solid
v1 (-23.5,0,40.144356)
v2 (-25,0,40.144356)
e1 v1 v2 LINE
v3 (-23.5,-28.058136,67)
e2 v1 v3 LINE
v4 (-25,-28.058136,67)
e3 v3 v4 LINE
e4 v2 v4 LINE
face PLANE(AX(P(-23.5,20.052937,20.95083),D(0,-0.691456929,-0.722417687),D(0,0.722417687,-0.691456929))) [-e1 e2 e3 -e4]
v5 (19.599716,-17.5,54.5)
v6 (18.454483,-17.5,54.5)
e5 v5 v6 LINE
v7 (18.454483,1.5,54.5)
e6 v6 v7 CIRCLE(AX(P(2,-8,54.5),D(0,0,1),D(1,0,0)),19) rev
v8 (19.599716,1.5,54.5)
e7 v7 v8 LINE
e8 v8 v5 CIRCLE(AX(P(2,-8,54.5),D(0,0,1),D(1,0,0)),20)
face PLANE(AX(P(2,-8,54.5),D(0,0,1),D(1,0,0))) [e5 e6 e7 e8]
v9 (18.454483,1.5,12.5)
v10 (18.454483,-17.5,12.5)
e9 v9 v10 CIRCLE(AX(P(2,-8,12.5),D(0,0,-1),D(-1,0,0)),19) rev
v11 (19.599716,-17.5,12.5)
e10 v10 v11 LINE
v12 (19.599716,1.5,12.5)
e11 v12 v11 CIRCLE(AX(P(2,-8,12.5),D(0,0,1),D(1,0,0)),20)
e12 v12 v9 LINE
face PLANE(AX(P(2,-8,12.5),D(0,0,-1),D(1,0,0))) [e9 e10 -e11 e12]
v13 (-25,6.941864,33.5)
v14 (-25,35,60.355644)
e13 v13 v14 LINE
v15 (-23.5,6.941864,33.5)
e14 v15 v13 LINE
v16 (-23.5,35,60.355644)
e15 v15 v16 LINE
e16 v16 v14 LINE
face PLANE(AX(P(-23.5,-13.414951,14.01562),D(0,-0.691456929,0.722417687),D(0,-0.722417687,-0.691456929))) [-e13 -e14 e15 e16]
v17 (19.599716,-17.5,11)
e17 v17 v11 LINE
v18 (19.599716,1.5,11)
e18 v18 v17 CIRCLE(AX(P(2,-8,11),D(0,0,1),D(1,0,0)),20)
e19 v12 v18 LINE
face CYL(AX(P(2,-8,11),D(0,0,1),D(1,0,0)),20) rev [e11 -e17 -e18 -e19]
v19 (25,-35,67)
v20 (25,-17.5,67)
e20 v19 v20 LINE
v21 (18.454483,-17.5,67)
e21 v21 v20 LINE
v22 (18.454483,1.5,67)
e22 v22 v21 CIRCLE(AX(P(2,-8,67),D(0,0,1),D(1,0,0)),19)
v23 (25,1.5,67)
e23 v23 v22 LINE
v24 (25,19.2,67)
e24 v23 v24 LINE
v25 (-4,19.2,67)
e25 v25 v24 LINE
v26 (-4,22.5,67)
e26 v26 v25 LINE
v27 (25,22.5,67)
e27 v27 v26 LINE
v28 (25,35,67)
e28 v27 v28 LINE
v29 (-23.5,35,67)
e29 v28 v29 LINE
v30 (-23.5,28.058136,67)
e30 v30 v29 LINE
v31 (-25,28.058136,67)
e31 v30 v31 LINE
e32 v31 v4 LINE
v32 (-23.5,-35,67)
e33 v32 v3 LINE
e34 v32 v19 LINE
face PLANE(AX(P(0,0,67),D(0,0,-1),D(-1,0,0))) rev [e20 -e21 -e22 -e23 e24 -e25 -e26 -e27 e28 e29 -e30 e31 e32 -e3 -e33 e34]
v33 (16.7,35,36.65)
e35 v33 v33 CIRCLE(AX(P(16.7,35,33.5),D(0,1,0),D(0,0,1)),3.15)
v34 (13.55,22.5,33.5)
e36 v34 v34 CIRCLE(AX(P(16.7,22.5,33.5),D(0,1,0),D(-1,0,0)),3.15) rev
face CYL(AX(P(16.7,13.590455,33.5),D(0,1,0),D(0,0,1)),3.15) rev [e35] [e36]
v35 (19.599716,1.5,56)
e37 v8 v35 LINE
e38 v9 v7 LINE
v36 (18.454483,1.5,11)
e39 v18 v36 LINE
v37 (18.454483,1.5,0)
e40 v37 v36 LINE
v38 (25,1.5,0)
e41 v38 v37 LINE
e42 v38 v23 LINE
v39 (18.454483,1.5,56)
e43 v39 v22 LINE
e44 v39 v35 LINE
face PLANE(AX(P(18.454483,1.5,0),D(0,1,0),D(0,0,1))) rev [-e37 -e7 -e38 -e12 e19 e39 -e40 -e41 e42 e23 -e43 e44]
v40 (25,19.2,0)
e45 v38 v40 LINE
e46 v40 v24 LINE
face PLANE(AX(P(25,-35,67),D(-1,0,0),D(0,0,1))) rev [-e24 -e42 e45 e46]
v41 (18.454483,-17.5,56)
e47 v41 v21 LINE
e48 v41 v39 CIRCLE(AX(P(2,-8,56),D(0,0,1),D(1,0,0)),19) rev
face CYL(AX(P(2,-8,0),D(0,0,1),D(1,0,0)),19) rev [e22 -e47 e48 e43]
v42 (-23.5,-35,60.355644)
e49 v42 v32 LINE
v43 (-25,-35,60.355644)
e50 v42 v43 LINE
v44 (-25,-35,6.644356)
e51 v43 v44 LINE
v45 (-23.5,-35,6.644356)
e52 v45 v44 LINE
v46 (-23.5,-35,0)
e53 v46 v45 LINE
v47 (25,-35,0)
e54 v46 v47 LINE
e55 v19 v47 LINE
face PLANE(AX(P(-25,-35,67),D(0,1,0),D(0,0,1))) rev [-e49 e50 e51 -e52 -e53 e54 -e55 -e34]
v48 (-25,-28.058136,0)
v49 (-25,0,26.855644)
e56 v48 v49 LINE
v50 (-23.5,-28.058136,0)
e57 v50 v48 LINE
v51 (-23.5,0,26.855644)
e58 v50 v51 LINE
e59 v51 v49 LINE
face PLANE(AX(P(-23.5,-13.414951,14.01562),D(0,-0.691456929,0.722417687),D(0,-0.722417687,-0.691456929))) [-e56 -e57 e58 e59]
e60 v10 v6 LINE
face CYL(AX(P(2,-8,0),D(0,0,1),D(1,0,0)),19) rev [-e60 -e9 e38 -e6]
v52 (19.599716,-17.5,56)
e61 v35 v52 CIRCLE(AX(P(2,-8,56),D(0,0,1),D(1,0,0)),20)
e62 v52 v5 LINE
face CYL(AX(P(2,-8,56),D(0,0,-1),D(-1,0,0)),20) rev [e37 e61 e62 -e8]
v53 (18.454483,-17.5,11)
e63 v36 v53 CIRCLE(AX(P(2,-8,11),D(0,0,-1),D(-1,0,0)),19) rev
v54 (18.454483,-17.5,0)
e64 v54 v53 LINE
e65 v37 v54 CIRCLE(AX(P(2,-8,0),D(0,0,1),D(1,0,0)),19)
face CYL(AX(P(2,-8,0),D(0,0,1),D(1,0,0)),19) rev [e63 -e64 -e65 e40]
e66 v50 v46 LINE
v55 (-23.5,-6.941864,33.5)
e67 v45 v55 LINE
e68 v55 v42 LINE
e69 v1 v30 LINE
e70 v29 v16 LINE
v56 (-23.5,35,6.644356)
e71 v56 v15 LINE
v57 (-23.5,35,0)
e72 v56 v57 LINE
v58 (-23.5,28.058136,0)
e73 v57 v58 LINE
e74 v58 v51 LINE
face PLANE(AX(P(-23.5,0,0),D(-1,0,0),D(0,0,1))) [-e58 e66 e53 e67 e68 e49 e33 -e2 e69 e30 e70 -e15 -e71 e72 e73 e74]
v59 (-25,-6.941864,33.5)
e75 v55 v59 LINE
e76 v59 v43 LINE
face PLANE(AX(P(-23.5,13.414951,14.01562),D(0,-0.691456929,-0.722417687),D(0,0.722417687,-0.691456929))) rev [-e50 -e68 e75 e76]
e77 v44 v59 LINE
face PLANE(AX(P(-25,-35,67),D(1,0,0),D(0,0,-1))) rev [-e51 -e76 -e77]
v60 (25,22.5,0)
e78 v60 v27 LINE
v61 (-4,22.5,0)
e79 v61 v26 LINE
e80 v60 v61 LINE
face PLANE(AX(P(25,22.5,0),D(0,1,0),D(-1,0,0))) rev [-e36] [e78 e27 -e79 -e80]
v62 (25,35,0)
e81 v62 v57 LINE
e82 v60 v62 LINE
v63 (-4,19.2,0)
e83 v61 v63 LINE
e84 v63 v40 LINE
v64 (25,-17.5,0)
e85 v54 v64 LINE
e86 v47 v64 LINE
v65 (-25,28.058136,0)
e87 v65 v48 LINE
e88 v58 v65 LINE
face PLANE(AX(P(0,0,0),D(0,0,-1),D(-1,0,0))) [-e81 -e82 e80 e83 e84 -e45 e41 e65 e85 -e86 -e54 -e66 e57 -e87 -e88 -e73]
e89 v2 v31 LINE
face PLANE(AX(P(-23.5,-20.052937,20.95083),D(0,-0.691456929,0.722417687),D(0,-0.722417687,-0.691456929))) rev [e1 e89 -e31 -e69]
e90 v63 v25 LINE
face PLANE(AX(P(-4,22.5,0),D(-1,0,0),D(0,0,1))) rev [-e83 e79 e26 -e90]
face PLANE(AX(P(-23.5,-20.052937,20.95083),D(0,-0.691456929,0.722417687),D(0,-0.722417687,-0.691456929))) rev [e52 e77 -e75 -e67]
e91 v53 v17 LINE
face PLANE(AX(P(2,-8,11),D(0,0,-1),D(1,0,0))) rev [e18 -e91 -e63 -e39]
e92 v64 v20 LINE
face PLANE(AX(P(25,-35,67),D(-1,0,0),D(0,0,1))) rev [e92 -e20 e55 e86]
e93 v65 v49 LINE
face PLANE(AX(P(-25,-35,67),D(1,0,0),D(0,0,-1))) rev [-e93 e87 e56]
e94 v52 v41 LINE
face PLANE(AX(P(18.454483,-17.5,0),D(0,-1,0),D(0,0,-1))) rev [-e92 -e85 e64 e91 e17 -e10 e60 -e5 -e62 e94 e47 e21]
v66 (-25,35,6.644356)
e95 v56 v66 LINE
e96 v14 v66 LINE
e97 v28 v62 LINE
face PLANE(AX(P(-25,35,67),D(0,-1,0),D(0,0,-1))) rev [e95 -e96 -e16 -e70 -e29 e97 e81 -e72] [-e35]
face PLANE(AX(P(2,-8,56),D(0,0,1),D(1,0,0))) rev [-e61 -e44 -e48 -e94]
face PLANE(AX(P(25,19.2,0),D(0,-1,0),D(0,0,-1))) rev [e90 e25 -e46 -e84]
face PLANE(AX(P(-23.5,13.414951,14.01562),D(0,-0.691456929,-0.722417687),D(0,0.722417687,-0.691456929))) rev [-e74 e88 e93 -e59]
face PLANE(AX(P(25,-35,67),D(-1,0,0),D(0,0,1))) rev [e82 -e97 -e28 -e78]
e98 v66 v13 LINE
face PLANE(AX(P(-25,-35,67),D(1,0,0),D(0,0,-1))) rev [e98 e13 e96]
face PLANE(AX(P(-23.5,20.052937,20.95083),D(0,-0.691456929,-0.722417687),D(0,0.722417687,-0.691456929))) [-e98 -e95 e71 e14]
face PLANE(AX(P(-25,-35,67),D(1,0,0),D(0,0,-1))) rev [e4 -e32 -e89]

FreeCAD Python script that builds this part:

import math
import FreeCAD as App
import Part
import Sketcher

V = App.Vector

doc = App.newDocument("Part")
body = doc.addObject("PartDesign::Body", "Body")

# Sketch on XY plane
sketch1 = body.newObject("Sketcher::SketchObject", "Sketch")
sketch1.AttachmentSupport = (doc.getObject("XY_Plane"), [""])
sketch1.MapMode = "FlatFace"
sketch1.addGeometry(Part.LineSegment(V(-25, 35, 0), V(-25, -35, 0)), False)
sketch1.addGeometry(Part.LineSegment(V(-25, -35, 0), V(25, -35, 0)), False)
sketch1.addGeometry(Part.LineSegment(V(25, -35, 0), V(25, 35, 0)), False)
sketch1.addGeometry(Part.LineSegment(V(25, 35, 0), V(-25, 35, 0)), False)
sketch1.addConstraint(Sketcher.Constraint("Coincident", 0, 2, 1, 1))
sketch1.addConstraint(Sketcher.Constraint("Coincident", 1, 2, 2, 1))
sketch1.addConstraint(Sketcher.Constraint("Coincident", 2, 2, 3, 1))
sketch1.addConstraint(Sketcher.Constraint("Coincident", 3, 2, 0, 1))
sketch1.addConstraint(Sketcher.Constraint("Vertical", 0))
sketch1.addConstraint(Sketcher.Constraint("Horizontal", 1))
sketch1.addConstraint(Sketcher.Constraint("Vertical", 2))
sketch1.addConstraint(Sketcher.Constraint("Horizontal", 3))
sketch1.addConstraint(Sketcher.Constraint("Symmetric", 0, 2, 2, 2, -1, 1))
sketch1.addConstraint(Sketcher.Constraint("DistanceX", 1, 1, 1, 2, 50.0))
sketch1.addConstraint(Sketcher.Constraint("DistanceY", 0, 2, 0, 1, 70.0))
pad1 = body.newObject("PartDesign::Pad", "Pad")
pad1.Profile = sketch1
pad1.Length = 67

# Sketch on XY plane
sketch2 = body.newObject("Sketcher::SketchObject", "Sketch001")
sketch2.AttachmentSupport = (doc.getObject("XY_Plane"), [""])
sketch2.MapMode = "FlatFace"
sketch2.AttachmentOffset = App.Placement(V(0, 0, 67), App.Rotation())
sketch2.addGeometry(Part.LineSegment(V(-4, 22.5, 0), V(-4, 19.2, 0)), False)
sketch2.addGeometry(Part.LineSegment(V(-4, 19.2, 0), V(25, 19.2, 0)), False)
sketch2.addGeometry(Part.LineSegment(V(25, 19.2, 0), V(25, 22.5, 0)), False)
sketch2.addGeometry(Part.LineSegment(V(25, 22.5, 0), V(-4, 22.5, 0)), False)
sketch2.addGeometry(Part.LineSegment(V(18.5, -17.5, 0), V(25, -17.5, 0)), False)
sketch2.addGeometry(Part.LineSegment(V(25, -17.5, 0), V(25, 1.5, 0)), False)
sketch2.addGeometry(Part.LineSegment(V(25, 1.5, 0), V(18.5, 1.5, 0)), False)
sketch2.addGeometry(Part.ArcOfCircle(Part.Circle(V(2, -8, 0), V(0, 0, 1), 19), math.radians(30), math.radians(330)), False)
sketch2.addConstraint(Sketcher.Constraint("Coincident", 0, 2, 1, 1))
sketch2.addConstraint(Sketcher.Constraint("Coincident", 1, 2, 2, 1))
sketch2.addConstraint(Sketcher.Constraint("Coincident", 2, 2, 3, 1))
sketch2.addConstraint(Sketcher.Constraint("Coincident", 3, 2, 0, 1))
sketch2.addConstraint(Sketcher.Constraint("Coincident", 4, 2, 5, 1))
sketch2.addConstraint(Sketcher.Constraint("Coincident", 5, 2, 6, 1))
sketch2.addConstraint(Sketcher.Constraint("Coincident", 6, 2, 7, 1))
sketch2.addConstraint(Sketcher.Constraint("Coincident", 7, 2, 4, 1))
sketch2.addConstraint(Sketcher.Constraint("Vertical", 0))
sketch2.addConstraint(Sketcher.Constraint("Horizontal", 1))
sketch2.addConstraint(Sketcher.Constraint("Vertical", 2))
sketch2.addConstraint(Sketcher.Constraint("Horizontal", 3))
sketch2.addConstraint(Sketcher.Constraint("Horizontal", 4))
sketch2.addConstraint(Sketcher.Constraint("Vertical", 5))
sketch2.addConstraint(Sketcher.Constraint("Horizontal", 6))
sketch2.addConstraint(Sketcher.Constraint("Vertical", 2, 2, 4, 2))
sketch2.addConstraint(Sketcher.Constraint("Vertical", 6, 2, 7, 2))
sketch2.addConstraint(Sketcher.Constraint("Radius", 7, 19.0))
sketch2.addConstraint(Sketcher.Constraint("DistanceX", 1, 1, 1, 2, 29.0))
sketch2.addConstraint(Sketcher.Constraint("DistanceY", 5, 1, 5, 2, 19.0))
sketch2.addConstraint(Sketcher.Constraint("DistanceY", 0, 2, 0, 1, 3.3))
sketch2.addConstraint(Sketcher.Constraint("DistanceX", -1, 1, 7, 3, 2.0))
sketch2.addConstraint(Sketcher.Constraint("DistanceY", 7, 3, -1, 1, 8.0))
sketch2.addConstraint(Sketcher.Constraint("DistanceX", 0, 2, -1, 1, 4.0))
sketch2.addConstraint(Sketcher.Constraint("DistanceY", 4, 2, 2, 2, 40.0))
pocket1 = body.newObject("PartDesign::Pocket", "Pocket")
pocket1.Profile = sketch2
pocket1.Type = "ThroughAll"

# Sketch on YZ plane
sketch3 = body.newObject("Sketcher::SketchObject", "Sketch002")
sketch3.AttachmentSupport = (doc.getObject("YZ_Plane"), [""])
sketch3.MapMode = "FlatFace"
sketch3.AttachmentOffset = App.Placement(V(0, 0, -25), App.Rotation())
sketch3.addGeometry(Part.LineSegment(V(35, 0, 0), V(28, 0, 0)), False)
sketch3.addGeometry(Part.LineSegment(V(28, 0, 0), V(0, 27, 0)), False)
sketch3.addGeometry(Part.LineSegment(V(0, 27, 0), V(-28, 0, 0)), False)
sketch3.addGeometry(Part.LineSegment(V(-28, 0, 0), V(-35, 0, 0)), False)
sketch3.addGeometry(Part.LineSegment(V(-35, 0, 0), V(-35, 7, 0)), False)
sketch3.addGeometry(Part.LineSegment(V(-35, 7, 0), V(-7, 34, 0)), False)
sketch3.addGeometry(Part.LineSegment(V(-7, 34, 0), V(-35, 60, 0)), False)
sketch3.addGeometry(Part.LineSegment(V(-35, 60, 0), V(-35, 67, 0)), False)
sketch3.addGeometry(Part.LineSegment(V(-35, 67, 0), V(-28, 67, 0)), False)
sketch3.addGeometry(Part.LineSegment(V(-28, 67, 0), V(0, 40, 0)), False)
sketch3.addGeometry(Part.LineSegment(V(0, 40, 0), V(28, 67, 0)), False)
sketch3.addGeometry(Part.LineSegment(V(28, 67, 0), V(35, 67, 0)), False)
sketch3.addGeometry(Part.LineSegment(V(35, 67, 0), V(35, 60, 0)), False)
sketch3.addGeometry(Part.LineSegment(V(35, 60, 0), V(7, 34, 0)), False)
sketch3.addGeometry(Part.LineSegment(V(7, 34, 0), V(35, 7, 0)), False)
sketch3.addGeometry(Part.LineSegment(V(35, 7, 0), V(35, 0, 0)), False)
sketch3.addConstraint(Sketcher.Constraint("Coincident", 0, 2, 1, 1))
sketch3.addConstraint(Sketcher.Constraint("Coincident", 1, 2, 2, 1))
sketch3.addConstraint(Sketcher.Constraint("Coincident", 2, 2, 3, 1))
sketch3.addConstraint(Sketcher.Constraint("Coincident", 3, 2, 4, 1))
sketch3.addConstraint(Sketcher.Constraint("Coincident", 4, 2, 5, 1))
sketch3.addConstraint(Sketcher.Constraint("Coincident", 5, 2, 6, 1))
sketch3.addConstraint(Sketcher.Constraint("Coincident", 6, 2, 7, 1))
sketch3.addConstraint(Sketcher.Constraint("Coincident", 7, 2, 8, 1))
sketch3.addConstraint(Sketcher.Constraint("Coincident", 8, 2, 9, 1))
sketch3.addConstraint(Sketcher.Constraint("Coincident", 9, 2, 10, 1))
sketch3.addConstraint(Sketcher.Constraint("Coincident", 10, 2, 11, 1))
sketch3.addConstraint(Sketcher.Constraint("Coincident", 11, 2, 12, 1))
sketch3.addConstraint(Sketcher.Constraint("Coincident", 12, 2, 13, 1))
sketch3.addConstraint(Sketcher.Constraint("Coincident", 13, 2, 14, 1))
sketch3.addConstraint(Sketcher.Constraint("Coincident", 14, 2, 15, 1))
sketch3.addConstraint(Sketcher.Constraint("Coincident", 15, 2, 0, 1))
sketch3.addConstraint(Sketcher.Constraint("Horizontal", 0))
sketch3.addConstraint(Sketcher.Constraint("Horizontal", 3))
sketch3.addConstraint(Sketcher.Constraint("Vertical", 4))
sketch3.addConstraint(Sketcher.Constraint("Vertical", 7))
sketch3.addConstraint(Sketcher.Constraint("Horizontal", 8))
sketch3.addConstraint(Sketcher.Constraint("Horizontal", 11))
sketch3.addConstraint(Sketcher.Constraint("Vertical", 12))
sketch3.addConstraint(Sketcher.Constraint("Vertical", 15))
sketch3.addConstraint(Sketcher.Constraint("Symmetric", 0, 2, 2, 2, -1, 1))
sketch3.addConstraint(Sketcher.Constraint("Symmetric", 8, 2, 10, 2, -2))
sketch3.addConstraint(Sketcher.Constraint("Symmetric", 6, 2, 12, 2, -2))
sketch3.addConstraint(Sketcher.Constraint("Symmetric", 5, 2, 13, 2, -2))
sketch3.addConstraint(Sketcher.Constraint("Symmetric", 4, 2, 14, 2, -2))
sketch3.addConstraint(Sketcher.Constraint("PointOnObject", 0, 2, -1))
sketch3.addConstraint(Sketcher.Constraint("PointOnObject", 1, 2, -2))
sketch3.addConstraint(Sketcher.Constraint("PointOnObject", 9, 2, -2))
sketch3.addConstraint(Sketcher.Constraint("Parallel", 2, 5))
sketch3.addConstraint(Sketcher.Constraint("Parallel", 1, 6))
sketch3.addConstraint(Sketcher.Constraint("Parallel", 6, 9))
sketch3.addConstraint(Sketcher.Constraint("Vertical", 4, 2, 6, 2))
sketch3.addConstraint(Sketcher.Constraint("Vertical", 2, 2, 8, 2))
sketch3.addConstraint(Sketcher.Constraint("Equal", 4, 7))
sketch3.addConstraint(Sketcher.Constraint("Equal", 2, 5))
sketch3.addConstraint(Sketcher.Constraint("DistanceX", 3, 2, -1, 1, 35.0))
sketch3.addConstraint(Sketcher.Constraint("DistanceY", -1, 1, 7, 2, 67.0))
sketch3.addConstraint(Sketcher.Constraint("DistanceX", 0, 2, 0, 1, 6.941864))
sketch3.addConstraint(Sketcher.Constraint("DistanceY", 4, 1, 4, 2, 6.644356))
pocket2 = body.newObject("PartDesign::Pocket", "Pocket001")
pocket2.Profile = sketch3
pocket2.Length = 1.5
pocket2.Reversed = True

# Sketch on XZ plane
sketch4 = body.newObject("Sketcher::SketchObject", "Sketch003")
sketch4.AttachmentSupport = (doc.getObject("XZ_Plane"), [""])
sketch4.MapMode = "FlatFace"
sketch4.AttachmentOffset = App.Placement(V(0, 0, -35), App.Rotation())
sketch4.addGeometry(Part.Circle(V(16.7, 33.5, 0), V(0, 0, 1), 3.1), False)
sketch4.addConstraint(Sketcher.Constraint("Diameter", 0, 6.3))
sketch4.addConstraint(Sketcher.Constraint("DistanceX", -1, 1, 0, 3, 16.7))
sketch4.addConstraint(Sketcher.Constraint("DistanceY", -1, 1, 0, 3, 33.5))
pocket3 = body.newObject("PartDesign::Pocket", "Pocket002")
pocket3.Profile = sketch4
pocket3.Length = 12.5
pocket3.Reversed = True

# Sketch on XY plane
sketch5 = body.newObject("Sketcher::SketchObject", "Sketch004")
sketch5.AttachmentSupport = (doc.getObject("XY_Plane"), [""])
sketch5.MapMode = "FlatFace"
sketch5.AttachmentOffset = App.Placement(V(0, 0, 54.5), App.Rotation())
sketch5.addGeometry(Part.Circle(V(2, -8, 0), V(0, 0, 1), 20), False)
sketch5.addConstraint(Sketcher.Constraint("Diameter", 0, 40.0))
sketch5.addConstraint(Sketcher.Constraint("DistanceX", -1, 1, 0, 3, 2.0))
sketch5.addConstraint(Sketcher.Constraint("DistanceY", 0, 3, -1, 1, 8.0))
pocket4 = body.newObject("PartDesign::Pocket", "Pocket003")
pocket4.Profile = sketch5
pocket4.Length = 1.5
pocket4.Reversed = True
doc.recompute()

datumplane = body.newObject("PartDesign::Plane", "DatumPlane")
datumplane.AttachmentSupport = (doc.getObject("XY_Plane"), [""])
datumplane.MapMode = "FlatFace"
datumplane.AttachmentOffset = App.Placement(V(0, 0, 33.5), App.Rotation())
mirrored = body.newObject("PartDesign::Mirrored", "Mirrored")
mirrored.Originals = [pocket4]
mirrored.MirrorPlane = (datumplane, [""])
body.Tip = mirrored

doc.recompute()
